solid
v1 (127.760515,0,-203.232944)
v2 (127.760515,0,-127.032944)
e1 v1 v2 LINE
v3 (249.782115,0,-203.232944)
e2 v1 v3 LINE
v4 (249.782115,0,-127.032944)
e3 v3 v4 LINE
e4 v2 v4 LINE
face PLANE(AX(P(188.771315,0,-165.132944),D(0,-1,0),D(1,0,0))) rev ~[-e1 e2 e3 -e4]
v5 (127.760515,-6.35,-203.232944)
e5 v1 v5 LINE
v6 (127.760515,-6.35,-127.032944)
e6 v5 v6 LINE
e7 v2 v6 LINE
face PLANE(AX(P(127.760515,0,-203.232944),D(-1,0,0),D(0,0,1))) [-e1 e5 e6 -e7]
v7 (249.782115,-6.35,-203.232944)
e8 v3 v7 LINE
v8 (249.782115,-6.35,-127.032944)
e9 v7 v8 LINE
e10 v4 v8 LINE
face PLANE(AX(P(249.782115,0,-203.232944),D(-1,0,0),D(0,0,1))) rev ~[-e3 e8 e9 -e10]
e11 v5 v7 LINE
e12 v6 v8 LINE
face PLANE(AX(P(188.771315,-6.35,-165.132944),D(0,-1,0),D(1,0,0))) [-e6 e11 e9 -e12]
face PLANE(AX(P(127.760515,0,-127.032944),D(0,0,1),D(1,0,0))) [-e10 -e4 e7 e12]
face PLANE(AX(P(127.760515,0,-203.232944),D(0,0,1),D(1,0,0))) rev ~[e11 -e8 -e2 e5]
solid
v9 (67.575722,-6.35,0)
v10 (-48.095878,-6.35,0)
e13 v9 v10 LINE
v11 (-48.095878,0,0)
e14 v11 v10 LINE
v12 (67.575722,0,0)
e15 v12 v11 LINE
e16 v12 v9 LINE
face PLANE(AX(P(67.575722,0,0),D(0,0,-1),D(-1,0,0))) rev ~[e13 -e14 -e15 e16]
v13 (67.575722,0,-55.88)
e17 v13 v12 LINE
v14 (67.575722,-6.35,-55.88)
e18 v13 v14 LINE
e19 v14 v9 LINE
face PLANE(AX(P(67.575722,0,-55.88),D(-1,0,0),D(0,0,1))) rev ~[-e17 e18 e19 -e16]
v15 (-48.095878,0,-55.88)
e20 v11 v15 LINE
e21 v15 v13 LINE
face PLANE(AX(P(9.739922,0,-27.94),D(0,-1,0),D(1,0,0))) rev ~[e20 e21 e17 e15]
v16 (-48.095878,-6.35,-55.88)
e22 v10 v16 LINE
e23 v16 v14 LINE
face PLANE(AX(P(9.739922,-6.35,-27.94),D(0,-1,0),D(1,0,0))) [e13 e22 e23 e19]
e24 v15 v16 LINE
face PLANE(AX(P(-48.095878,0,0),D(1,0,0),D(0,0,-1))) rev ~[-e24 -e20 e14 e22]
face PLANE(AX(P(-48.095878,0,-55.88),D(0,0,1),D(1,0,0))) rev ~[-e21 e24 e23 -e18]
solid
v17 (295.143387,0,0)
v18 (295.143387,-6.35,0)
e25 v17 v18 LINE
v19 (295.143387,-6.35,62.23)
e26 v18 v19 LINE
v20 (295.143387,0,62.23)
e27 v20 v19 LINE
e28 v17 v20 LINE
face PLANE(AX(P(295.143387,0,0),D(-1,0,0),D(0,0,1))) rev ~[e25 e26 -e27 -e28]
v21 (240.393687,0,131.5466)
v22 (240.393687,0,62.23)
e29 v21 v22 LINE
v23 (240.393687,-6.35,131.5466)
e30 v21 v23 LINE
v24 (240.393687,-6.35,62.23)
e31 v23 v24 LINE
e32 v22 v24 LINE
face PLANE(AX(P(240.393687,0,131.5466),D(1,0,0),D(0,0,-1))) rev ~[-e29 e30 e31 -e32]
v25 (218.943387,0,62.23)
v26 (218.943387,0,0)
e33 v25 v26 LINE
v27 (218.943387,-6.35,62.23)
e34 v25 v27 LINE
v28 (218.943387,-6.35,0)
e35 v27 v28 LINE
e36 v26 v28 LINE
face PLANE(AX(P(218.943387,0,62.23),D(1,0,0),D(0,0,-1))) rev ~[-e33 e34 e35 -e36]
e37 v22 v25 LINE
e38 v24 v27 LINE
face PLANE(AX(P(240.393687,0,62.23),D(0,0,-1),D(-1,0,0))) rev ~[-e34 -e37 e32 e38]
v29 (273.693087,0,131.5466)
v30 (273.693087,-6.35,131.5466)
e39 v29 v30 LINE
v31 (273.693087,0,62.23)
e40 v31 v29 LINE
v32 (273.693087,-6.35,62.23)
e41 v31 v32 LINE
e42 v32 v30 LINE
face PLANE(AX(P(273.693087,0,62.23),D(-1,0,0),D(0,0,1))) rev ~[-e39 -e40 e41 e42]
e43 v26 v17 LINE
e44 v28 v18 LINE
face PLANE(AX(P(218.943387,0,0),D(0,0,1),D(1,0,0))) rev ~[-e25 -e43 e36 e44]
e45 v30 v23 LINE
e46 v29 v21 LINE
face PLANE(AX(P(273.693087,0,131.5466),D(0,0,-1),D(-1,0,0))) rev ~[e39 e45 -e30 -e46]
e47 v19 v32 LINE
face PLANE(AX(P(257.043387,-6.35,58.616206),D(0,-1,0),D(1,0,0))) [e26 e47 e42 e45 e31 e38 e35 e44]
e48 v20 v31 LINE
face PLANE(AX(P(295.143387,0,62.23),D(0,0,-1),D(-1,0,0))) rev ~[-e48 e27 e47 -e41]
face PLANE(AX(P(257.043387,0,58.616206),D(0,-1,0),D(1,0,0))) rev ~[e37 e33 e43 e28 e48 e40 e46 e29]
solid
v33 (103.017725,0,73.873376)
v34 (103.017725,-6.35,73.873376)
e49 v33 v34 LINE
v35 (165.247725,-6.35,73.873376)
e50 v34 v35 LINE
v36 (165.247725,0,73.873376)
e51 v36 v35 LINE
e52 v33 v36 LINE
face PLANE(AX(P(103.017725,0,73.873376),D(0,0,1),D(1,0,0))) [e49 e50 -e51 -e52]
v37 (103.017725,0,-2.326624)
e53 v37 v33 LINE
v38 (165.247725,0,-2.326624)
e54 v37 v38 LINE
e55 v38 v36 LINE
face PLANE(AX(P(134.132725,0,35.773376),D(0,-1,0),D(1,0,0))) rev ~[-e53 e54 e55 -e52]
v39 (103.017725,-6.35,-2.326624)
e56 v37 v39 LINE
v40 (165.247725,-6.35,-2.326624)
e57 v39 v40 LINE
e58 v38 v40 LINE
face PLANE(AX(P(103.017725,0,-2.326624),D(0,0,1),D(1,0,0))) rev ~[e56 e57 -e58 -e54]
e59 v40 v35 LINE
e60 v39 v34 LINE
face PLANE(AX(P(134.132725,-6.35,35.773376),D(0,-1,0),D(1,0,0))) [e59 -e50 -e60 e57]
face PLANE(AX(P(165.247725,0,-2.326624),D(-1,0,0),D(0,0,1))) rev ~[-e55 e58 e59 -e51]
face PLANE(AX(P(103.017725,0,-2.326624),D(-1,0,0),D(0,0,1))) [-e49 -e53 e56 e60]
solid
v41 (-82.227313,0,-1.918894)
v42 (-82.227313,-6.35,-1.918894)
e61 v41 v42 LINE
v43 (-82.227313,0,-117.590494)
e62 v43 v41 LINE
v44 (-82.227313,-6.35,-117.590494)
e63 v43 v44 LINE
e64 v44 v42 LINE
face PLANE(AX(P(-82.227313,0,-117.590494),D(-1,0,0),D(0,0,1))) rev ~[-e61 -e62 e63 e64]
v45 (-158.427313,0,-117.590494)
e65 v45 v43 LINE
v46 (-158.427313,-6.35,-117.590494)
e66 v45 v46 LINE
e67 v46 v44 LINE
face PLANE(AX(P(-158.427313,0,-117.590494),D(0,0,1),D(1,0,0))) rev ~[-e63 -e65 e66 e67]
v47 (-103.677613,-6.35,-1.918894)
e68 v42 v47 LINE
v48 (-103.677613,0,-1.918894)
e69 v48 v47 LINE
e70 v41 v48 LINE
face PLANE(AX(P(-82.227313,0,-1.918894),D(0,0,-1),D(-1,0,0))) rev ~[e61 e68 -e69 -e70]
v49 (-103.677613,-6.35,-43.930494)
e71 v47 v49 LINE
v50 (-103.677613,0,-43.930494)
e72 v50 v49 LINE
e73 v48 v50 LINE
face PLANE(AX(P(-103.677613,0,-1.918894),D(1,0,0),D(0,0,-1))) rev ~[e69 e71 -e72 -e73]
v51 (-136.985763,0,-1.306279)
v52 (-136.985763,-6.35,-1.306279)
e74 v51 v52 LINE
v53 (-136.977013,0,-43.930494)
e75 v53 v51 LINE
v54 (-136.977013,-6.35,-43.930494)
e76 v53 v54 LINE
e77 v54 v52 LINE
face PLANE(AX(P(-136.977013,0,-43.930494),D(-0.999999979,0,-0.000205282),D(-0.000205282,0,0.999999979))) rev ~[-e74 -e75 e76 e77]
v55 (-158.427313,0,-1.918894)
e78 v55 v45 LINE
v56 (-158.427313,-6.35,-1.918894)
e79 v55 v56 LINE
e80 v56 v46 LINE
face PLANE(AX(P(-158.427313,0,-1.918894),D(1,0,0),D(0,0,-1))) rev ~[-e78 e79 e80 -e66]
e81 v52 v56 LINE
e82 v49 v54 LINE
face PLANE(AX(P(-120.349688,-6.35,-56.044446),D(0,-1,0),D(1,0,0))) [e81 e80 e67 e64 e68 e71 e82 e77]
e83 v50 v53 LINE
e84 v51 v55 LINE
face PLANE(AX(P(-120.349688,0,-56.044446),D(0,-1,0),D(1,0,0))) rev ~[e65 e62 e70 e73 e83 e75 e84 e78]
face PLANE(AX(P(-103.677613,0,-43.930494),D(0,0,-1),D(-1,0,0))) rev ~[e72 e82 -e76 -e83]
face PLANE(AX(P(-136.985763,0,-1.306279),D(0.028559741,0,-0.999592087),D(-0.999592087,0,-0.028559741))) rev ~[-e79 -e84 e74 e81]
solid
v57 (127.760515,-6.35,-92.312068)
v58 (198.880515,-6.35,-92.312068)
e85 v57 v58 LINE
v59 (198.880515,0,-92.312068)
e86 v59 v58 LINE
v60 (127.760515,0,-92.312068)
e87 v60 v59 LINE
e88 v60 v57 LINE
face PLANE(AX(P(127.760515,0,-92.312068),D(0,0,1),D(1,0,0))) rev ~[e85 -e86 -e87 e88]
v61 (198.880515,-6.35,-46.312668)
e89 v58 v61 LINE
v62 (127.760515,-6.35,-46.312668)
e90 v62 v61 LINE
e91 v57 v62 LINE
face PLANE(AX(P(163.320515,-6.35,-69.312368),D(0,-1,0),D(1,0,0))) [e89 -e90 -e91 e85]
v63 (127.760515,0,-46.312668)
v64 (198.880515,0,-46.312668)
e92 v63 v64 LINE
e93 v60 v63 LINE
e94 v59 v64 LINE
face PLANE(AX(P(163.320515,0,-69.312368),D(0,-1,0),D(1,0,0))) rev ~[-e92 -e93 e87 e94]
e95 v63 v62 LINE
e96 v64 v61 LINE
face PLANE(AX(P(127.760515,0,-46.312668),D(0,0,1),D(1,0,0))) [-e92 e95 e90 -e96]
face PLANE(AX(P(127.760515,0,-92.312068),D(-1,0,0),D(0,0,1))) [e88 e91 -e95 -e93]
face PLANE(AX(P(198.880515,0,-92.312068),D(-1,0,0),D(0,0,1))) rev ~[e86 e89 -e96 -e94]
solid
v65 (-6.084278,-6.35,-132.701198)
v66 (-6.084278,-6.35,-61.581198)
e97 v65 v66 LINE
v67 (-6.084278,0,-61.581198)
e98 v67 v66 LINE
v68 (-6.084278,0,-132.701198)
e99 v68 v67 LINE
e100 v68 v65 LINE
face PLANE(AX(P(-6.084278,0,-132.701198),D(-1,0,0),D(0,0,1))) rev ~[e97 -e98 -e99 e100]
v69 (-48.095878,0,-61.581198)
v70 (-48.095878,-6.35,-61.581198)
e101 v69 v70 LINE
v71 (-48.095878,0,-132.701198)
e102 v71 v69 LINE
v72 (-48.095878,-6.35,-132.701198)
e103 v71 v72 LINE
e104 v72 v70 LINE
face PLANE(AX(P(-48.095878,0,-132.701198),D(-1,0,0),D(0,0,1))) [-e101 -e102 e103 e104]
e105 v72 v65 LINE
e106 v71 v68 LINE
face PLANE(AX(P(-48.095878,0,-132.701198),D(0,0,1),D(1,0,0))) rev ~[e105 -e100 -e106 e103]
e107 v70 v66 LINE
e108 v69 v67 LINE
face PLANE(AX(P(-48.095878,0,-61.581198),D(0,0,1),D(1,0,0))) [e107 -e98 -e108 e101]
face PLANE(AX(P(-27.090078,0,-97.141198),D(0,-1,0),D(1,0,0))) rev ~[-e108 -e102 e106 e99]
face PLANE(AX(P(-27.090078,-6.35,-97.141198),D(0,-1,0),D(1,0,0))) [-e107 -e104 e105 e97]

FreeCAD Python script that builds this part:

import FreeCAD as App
import Part
import Sketcher

V = App.Vector
Q = App.Units.Quantity

doc = App.newDocument("Part")
body = doc.addObject("PartDesign::Body", "Body")
body.AllowCompound = True

# Sketch on XZ plane
sketch1 = doc.addObject("Sketcher::SketchObject", "Sketch")
body.addObject(sketch1)
sketch1.AttachmentSupport = (doc.XZ_Plane, [""])
sketch1.MapMode = "FlatFace"
sketch1.addGeometry(Part.LineSegment(V(-136.985763, -1.306279, 0), V(-158.427313, -1.918894, 0)), False)
sketch1.addGeometry(Part.LineSegment(V(-158.427313, -1.918894, 0), V(-158.427313, -117.590494, 0)), False)
sketch1.addGeometry(Part.LineSegment(V(-158.427313, -117.590494, 0), V(-82.227313, -117.590494, 0)), False)
sketch1.addGeometry(Part.LineSegment(V(-82.227313, -117.590494, 0), V(-82.227313, -1.918894, 0)), False)
sketch1.addGeometry(Part.LineSegment(V(-82.227313, -1.918894, 0), V(-103.677613, -1.918894, 0)), False)
sketch1.addGeometry(Part.LineSegment(V(-103.677613, -1.918894, 0), V(-103.677613, -43.930494, 0)), False)
sketch1.addGeometry(Part.LineSegment(V(-103.677613, -43.930494, 0), V(-136.977013, -43.930494, 0)), False)
sketch1.addGeometry(Part.LineSegment(V(-136.977013, -43.930494, 0), V(-136.985763, -1.306279, 0)), False)
sketch1.addGeometry(Part.LineSegment(V(-48.095878, -61.581198, 0), V(-48.095878, -132.701198, 0)), False)
sketch1.addGeometry(Part.LineSegment(V(-48.095878, -132.701198, 0), V(-6.084278, -132.701198, 0)), False)
sketch1.addGeometry(Part.LineSegment(V(-6.084278, -132.701198, 0), V(-6.084278, -61.581198, 0)), False)
sketch1.addGeometry(Part.LineSegment(V(-6.084278, -61.581198, 0), V(-48.095878, -61.581198, 0)), False)
sketch1.addGeometry(Part.LineSegment(V(67.575722, -55.88, 0), V(67.575722, 0, 0)), False)
sketch1.addGeometry(Part.LineSegment(V(67.575722, 0, 0), V(-48.095878, 0, 0)), False)
sketch1.addGeometry(Part.LineSegment(V(-48.095878, 0, 0), V(-48.095878, -55.88, 0)), False)
sketch1.addGeometry(Part.LineSegment(V(-48.095878, -55.88, 0), V(67.575722, -55.88, 0)), False)
sketch1.addGeometry(Part.LineSegment(V(103.017725, 73.873376, 0), V(103.017725, -2.326624, 0)), False)
sketch1.addGeometry(Part.LineSegment(V(103.017725, -2.326624, 0), V(165.247725, -2.326624, 0)), False)
sketch1.addGeometry(Part.LineSegment(V(165.247725, -2.326624, 0), V(165.247725, 73.873376, 0)), False)
sketch1.addGeometry(Part.LineSegment(V(165.247725, 73.873376, 0), V(103.017725, 73.873376, 0)), False)
sketch1.addGeometry(Part.LineSegment(V(240.393687, 62.23, 0), V(218.943387, 62.23, 0)), False)
sketch1.addGeometry(Part.LineSegment(V(218.943387, 62.23, 0), V(218.943387, 0, 0)), False)
sketch1.addGeometry(Part.LineSegment(V(218.943387, 0, 0), V(295.143387, 0, 0)), False)
sketch1.addGeometry(Part.LineSegment(V(295.143387, 0, 0), V(295.143387, 62.23, 0)), False)
sketch1.addGeometry(Part.LineSegment(V(295.143387, 62.23, 0), V(273.693087, 62.23, 0)), False)
sketch1.addGeometry(Part.LineSegment(V(273.693087, 62.23, 0), V(273.693087, 131.5466, 0)), False)
sketch1.addGeometry(Part.LineSegment(V(273.693087, 131.5466, 0), V(240.393687, 131.5466, 0)), False)
sketch1.addGeometry(Part.LineSegment(V(240.393687, 131.5466, 0), V(240.393687, 62.23, 0)), False)
sketch1.addGeometry(Part.LineSegment(V(127.760515, -46.312668, 0), V(127.760515, -92.312068, 0)), False)
sketch1.addGeometry(Part.LineSegment(V(127.760515, -92.312068, 0), V(198.880515, -92.312068, 0)), False)
sketch1.addGeometry(Part.LineSegment(V(198.880515, -92.312068, 0), V(198.880515, -46.312668, 0)), False)
sketch1.addGeometry(Part.LineSegment(V(198.880515, -46.312668, 0), V(127.760515, -46.312668, 0)), False)
sketch1.addGeometry(Part.LineSegment(V(127.760515, -127.032944, 0), V(127.760515, -203.232944, 0)), False)
sketch1.addGeometry(Part.LineSegment(V(127.760515, -203.232944, 0), V(249.782115, -203.232944, 0)), False)
sketch1.addGeometry(Part.LineSegment(V(249.782115, -203.232944, 0), V(249.782115, -127.032944, 0)), False)
sketch1.addGeometry(Part.LineSegment(V(249.782115, -127.032944, 0), V(127.760515, -127.032944, 0)), False)
sketch1.addConstraint(Sketcher.Constraint("Coincident", 0, 2, 1, 1))
sketch1.addConstraint(Sketcher.Constraint("Coincident", 1, 2, 2, 1))
sketch1.addConstraint(Sketcher.Constraint("Coincident", 2, 2, 3, 1))
sketch1.addConstraint(Sketcher.Constraint("Coincident", 3, 2, 4, 1))
sketch1.addConstraint(Sketcher.Constraint("Coincident", 4, 2, 5, 1))
sketch1.addConstraint(Sketcher.Constraint("Coincident", 5, 2, 6, 1))
sketch1.addConstraint(Sketcher.Constraint("Coincident", 6, 2, 7, 1))
sketch1.addConstraint(Sketcher.Constraint("Coincident", 7, 2, 0, 1))
sketch1.addConstraint(Sketcher.Constraint("Coincident", 8, 2, 9, 1))
sketch1.addConstraint(Sketcher.Constraint("Coincident", 9, 2, 10, 1))
sketch1.addConstraint(Sketcher.Constraint("Coincident", 10, 2, 11, 1))
sketch1.addConstraint(Sketcher.Constraint("Coincident", 11, 2, 8, 1))
sketch1.addConstraint(Sketcher.Constraint("Coincident", 12, 2, 13, 1))
sketch1.addConstraint(Sketcher.Constraint("Coincident", 13, 2, 14, 1))
sketch1.addConstraint(Sketcher.Constraint("Coincident", 14, 2, 15, 1))
sketch1.addConstraint(Sketcher.Constraint("Coincident", 15, 2, 12, 1))
sketch1.addConstraint(Sketcher.Constraint("Coincident", 16, 2, 17, 1))
sketch1.addConstraint(Sketcher.Constraint("Coincident", 17, 2, 18, 1))
sketch1.addConstraint(Sketcher.Constraint("Coincident", 18, 2, 19, 1))
sketch1.addConstraint(Sketcher.Constraint("Coincident", 19, 2, 16, 1))
sketch1.addConstraint(Sketcher.Constraint("Coincident", 20, 2, 21, 1))
sketch1.addConstraint(Sketcher.Constraint("Coincident", 21, 2, 22, 1))
sketch1.addConstraint(Sketcher.Constraint("Coincident", 22, 2, 23, 1))
sketch1.addConstraint(Sketcher.Constraint("Coincident", 23, 2, 24, 1))
sketch1.addConstraint(Sketcher.Constraint("Coincident", 24, 2, 25, 1))
sketch1.addConstraint(Sketcher.Constraint("Coincident", 25, 2, 26, 1))
sketch1.addConstraint(Sketcher.Constraint("Coincident", 26, 2, 27, 1))
sketch1.addConstraint(Sketcher.Constraint("Coincident", 27, 2, 20, 1))
sketch1.addConstraint(Sketcher.Constraint("Coincident", 28, 2, 29, 1))
sketch1.addConstraint(Sketcher.Constraint("Coincident", 29, 2, 30, 1))
sketch1.addConstraint(Sketcher.Constraint("Coincident", 30, 2, 31, 1))
sketch1.addConstraint(Sketcher.Constraint("Coincident", 31, 2, 28, 1))
sketch1.addConstraint(Sketcher.Constraint("Coincident", 32, 2, 33, 1))
sketch1.addConstraint(Sketcher.Constraint("Coincident", 33, 2, 34, 1))
sketch1.addConstraint(Sketcher.Constraint("Coincident", 34, 2, 35, 1))
sketch1.addConstraint(Sketcher.Constraint("Coincident", 35, 2, 32, 1))
sketch1.addConstraint(Sketcher.Constraint("Vertical", 1))
sketch1.addConstraint(Sketcher.Constraint("Horizontal", 2))
sketch1.addConstraint(Sketcher.Constraint("Vertical", 3))
sketch1.addConstraint(Sketcher.Constraint("Horizontal", 4))
sketch1.addConstraint(Sketcher.Constraint("Vertical", 5))
sketch1.addConstraint(Sketcher.Constraint("Horizontal", 6))
sketch1.addConstraint(Sketcher.Constraint("Vertical", 8))
sketch1.addConstraint(Sketcher.Constraint("Horizontal", 9))
sketch1.addConstraint(Sketcher.Constraint("Vertical", 10))
sketch1.addConstraint(Sketcher.Constraint("Horizontal", 11))
sketch1.addConstraint(Sketcher.Constraint("Vertical", 12))
sketch1.addConstraint(Sketcher.Constraint("Horizontal", 13))
sketch1.addConstraint(Sketcher.Constraint("Vertical", 14))
sketch1.addConstraint(Sketcher.Constraint("Horizontal", 15))
sketch1.addConstraint(Sketcher.Constraint("Vertical", 16))
sketch1.addConstraint(Sketcher.Constraint("Horizontal", 17))
sketch1.addConstraint(Sketcher.Constraint("Vertical", 18))
sketch1.addConstraint(Sketcher.Constraint("Horizontal", 19))
sketch1.addConstraint(Sketcher.Constraint("Horizontal", 20))
sketch1.addConstraint(Sketcher.Constraint("Vertical", 21))
sketch1.addConstraint(Sketcher.Constraint("Horizontal", 22))
sketch1.addConstraint(Sketcher.Constraint("Vertical", 23))
sketch1.addConstraint(Sketcher.Constraint("Horizontal", 24))
sketch1.addConstraint(Sketcher.Constraint("Vertical", 25))
sketch1.addConstraint(Sketcher.Constraint("Horizontal", 26))
sketch1.addConstraint(Sketcher.Constraint("Vertical", 27))
sketch1.addConstraint(Sketcher.Constraint("Vertical", 28))
sketch1.addConstraint(Sketcher.Constraint("Horizontal", 29))
sketch1.addConstraint(Sketcher.Constraint("Vertical", 30))
sketch1.addConstraint(Sketcher.Constraint("Horizontal", 31))
sketch1.addConstraint(Sketcher.Constraint("Vertical", 32))
sketch1.addConstraint(Sketcher.Constraint("Horizontal", 33))
sketch1.addConstraint(Sketcher.Constraint("Vertical", 34))
sketch1.addConstraint(Sketcher.Constraint("Horizontal", 35))
sketch1.addConstraint(Sketcher.Constraint("PointOnObject", 12, 2, -1))
sketch1.addConstraint(Sketcher.Constraint("PointOnObject", 21, 2, -1))
sketch1.addConstraint(Sketcher.Constraint("Horizontal", 0, 2, 3, 2))
sketch1.addConstraint(Sketcher.Constraint("Horizontal", 20, 2, 23, 2))
sketch1.addConstraint(Sketcher.Constraint("Vertical", 11, 2, 13, 2))
sketch1.addConstraint(Sketcher.Constraint("Vertical", 31, 2, 32, 2))
sketch1.addConstraint(Sketcher.Constraint("Equal", 4, 20))
sketch1.addConstraint(Sketcher.Constraint("Equal", 2, 22))
sketch1.addConstraint(Sketcher.Constraint("Equal", 20, 24))
sketch1.addConstraint(Sketcher.Constraint("Equal", 6, 26))
sketch1.addConstraint(Sketcher.Constraint("Equal", 15, 1))
sketch1.addConstraint(Sketcher.Constraint("Equal", 11, 5))
sketch1.addConstraint(Sketcher.Constraint("Equal", 31, 8))
sketch1.addConstraint(Sketcher.Constraint("Equal", 22, 16))
sketch1.addConstraint(Sketcher.Constraint("Equal", 19, 21))
sketch1.addConstraint(Sketcher.Constraint("Equal", 18, 32))
sketch1.addConstraint(Sketcher.Constraint("DistanceX", 2, 1, 2, 2, Q("3 in")))
sketch1.addConstraint(Sketcher.Constraint("DistanceX", 29, 1, 29, 2, Q("2.8 in")))
sketch1.addConstraint(Sketcher.Constraint("DistanceY", 12, 1, 12, 2, Q("2.2 in")))
sketch1.addConstraint(Sketcher.Constraint("DistanceX", 17, 1, 17, 2, Q("2.45 in")))
sketch1.addConstraint(Sketcher.Constraint("DistanceY", 2, 2, 5, 2, Q("2.9 in")))
sketch1.addConstraint(Sketcher.Constraint("DistanceX", 6, 2, 6, 1, Q("1.311 in")))
sketch1.addConstraint(Sketcher.Constraint("DistanceX", 9, 1, 9, 2, Q("1.654 in")))
sketch1.addConstraint(Sketcher.Constraint("DistanceX", 33, 1, 33, 2, Q("4.804 in")))
sketch1.addConstraint(Sketcher.Constraint("DistanceY", 25, 1, 25, 2, Q("2.729 in")))
sketch1.addConstraint(Sketcher.Constraint("DistanceY", 28, 2, 28, 1, Q("1.811 in")))
sketch1.addConstraint(Sketcher.Constraint("Distance", 0, Q("0.8445 in")))
sketch1.addConstraint(Sketcher.Constraint("DistanceY", 8, 2, -1, 1, 132.701198))
sketch1.addConstraint(Sketcher.Constraint("DistanceY", 7, 2, -1, 1, 1.306279))
sketch1.addConstraint(Sketcher.Constraint("DistanceX", 9, 2, -1, 1, 6.084278))
sketch1.addConstraint(Sketcher.Constraint("DistanceY", 30, 2, -1, 1, 46.312668))
sketch1.addConstraint(Sketcher.Constraint("DistanceX", 0, 2, 7, 2, 21.44155))
sketch1.addConstraint(Sketcher.Constraint("DistanceX", 18, 2, 24, 2, 108.445362))
sketch1.addConstraint(Sketcher.Constraint("DistanceX", 16, 2, 28, 2, 24.74279))
sketch1.addConstraint(Sketcher.Constraint("DistanceX", 0, 2, -1, 1, 158.427313))
sketch1.addConstraint(Sketcher.Constraint("DistanceX", -1, 1, 16, 2, 103.017725))
sketch1.addConstraint(Sketcher.Constraint("DistanceY", 16, 2, -1, 1, 2.326624))
sketch1.addConstraint(Sketcher.Constraint("DistanceY", 32, 2, -1, 1, 203.232944))
pad1 = doc.addObject("PartDesign::Pad", "Pad")
body.addObject(pad1)
pad1.Profile = sketch1
pad1.Length = Q("0.25 in")

doc.recompute()
